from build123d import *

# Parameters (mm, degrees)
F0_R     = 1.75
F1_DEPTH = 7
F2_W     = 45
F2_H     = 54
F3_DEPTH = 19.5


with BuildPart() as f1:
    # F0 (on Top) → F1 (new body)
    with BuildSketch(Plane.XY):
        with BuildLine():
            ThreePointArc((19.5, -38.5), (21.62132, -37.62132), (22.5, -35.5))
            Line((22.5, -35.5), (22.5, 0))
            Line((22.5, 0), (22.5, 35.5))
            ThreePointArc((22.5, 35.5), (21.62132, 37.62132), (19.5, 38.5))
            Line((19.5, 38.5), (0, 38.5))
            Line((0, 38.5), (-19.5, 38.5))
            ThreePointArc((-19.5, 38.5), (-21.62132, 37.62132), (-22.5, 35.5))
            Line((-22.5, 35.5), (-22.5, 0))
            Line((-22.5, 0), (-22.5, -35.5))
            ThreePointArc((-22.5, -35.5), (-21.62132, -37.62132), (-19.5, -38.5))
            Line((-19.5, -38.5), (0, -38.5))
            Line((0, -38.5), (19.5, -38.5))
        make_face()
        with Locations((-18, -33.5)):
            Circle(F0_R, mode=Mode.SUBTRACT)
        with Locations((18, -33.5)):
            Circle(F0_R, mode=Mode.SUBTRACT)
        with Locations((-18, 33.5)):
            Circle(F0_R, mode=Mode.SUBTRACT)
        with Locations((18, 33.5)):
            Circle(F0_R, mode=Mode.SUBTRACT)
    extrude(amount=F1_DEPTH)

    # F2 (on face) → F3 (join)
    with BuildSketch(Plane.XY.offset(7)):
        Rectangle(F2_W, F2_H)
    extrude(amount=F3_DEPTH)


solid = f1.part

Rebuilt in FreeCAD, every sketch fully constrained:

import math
import FreeCAD as App
import Part
import Sketcher

V = App.Vector
Q = App.Units.Quantity

doc = App.newDocument("Part")
params = doc.addObject("Spreadsheet::Sheet", "Params")
for row, (alias, value) in enumerate([
    ("sketch1_radius", "3.000001 mm"),
    ("sketch1_diameter", "3.5 mm"),
    ("sketch1_width", "39 mm"),
    ("sketch1_height", "71 mm"),
    ("pad1_length", "7 mm"),
    ("sketch2_width", "45 mm"),
    ("sketch2_height", "54 mm"),
    ("pad2_length", "19.5 mm"),
], start=1):
    params.set(f"A{row}", alias)
    params.set(f"B{row}", "=" + value)
    params.setAlias(f"B{row}", alias)

body = doc.addObject("PartDesign::Body", "Body")

sketch1 = body.newObject("Sketcher::SketchObject", "Sketch")
sketch1.AttachmentSupport = (doc.getObject("XY_Plane"), [""])
sketch1.MapMode = "FlatFace"
sketch1.addGeometry(Part.ArcOfCircle(Part.Circle(V(19.499999, -35.499999, 0), V(0, 0, 1), 3.000001), math.radians(-89.999978), math.radians(-0.000022)), False)
sketch1.addGeometry(Part.LineSegment(V(22.5, -35.5, 0), V(22.5, 35.5, 0)), False)
sketch1.addGeometry(Part.ArcOfCircle(Part.Circle(V(19.499999, 35.499999, 0), V(0, 0, 1), 3.000001), math.radians(0.000022), math.radians(89.999978)), False)
sketch1.addGeometry(Part.LineSegment(V(19.5, 38.5, 0), V(-19.5, 38.5, 0)), False)
sketch1.addGeometry(Part.ArcOfCircle(Part.Circle(V(-19.499999, 35.499999, 0), V(0, 0, 1), 3.000001), math.radians(90.000022), math.radians(179.999978)), False)
sketch1.addGeometry(Part.LineSegment(V(-22.5, 35.5, 0), V(-22.5, -35.5, 0)), False)
sketch1.addGeometry(Part.ArcOfCircle(Part.Circle(V(-19.499999, -35.499999, 0), V(0, 0, 1), 3.000001), math.radians(-179.999978), math.radians(-90.000022)), False)
sketch1.addGeometry(Part.LineSegment(V(-19.5, -38.5, 0), V(19.5, -38.5, 0)), False)
sketch1.addGeometry(Part.Circle(V(-18, -33.5, 0), V(0, 0, 1), 1.75), False)
sketch1.addGeometry(Part.Circle(V(18, -33.5, 0), V(0, 0, 1), 1.75), False)
sketch1.addGeometry(Part.Circle(V(-18, 33.5, 0), V(0, 0, 1), 1.75), False)
sketch1.addGeometry(Part.Circle(V(18, 33.5, 0), V(0, 0, 1), 1.75), False)
sketch1.addConstraint(Sketcher.Constraint("Tangent", 0, 2, 1, 1))
sketch1.addConstraint(Sketcher.Constraint("Tangent", 1, 2, 2, 1))
sketch1.addConstraint(Sketcher.Constraint("Tangent", 2, 2, 3, 1))
sketch1.addConstraint(Sketcher.Constraint("Tangent", 3, 2, 4, 1))
sketch1.addConstraint(Sketcher.Constraint("Tangent", 4, 2, 5, 1))
sketch1.addConstraint(Sketcher.Constraint("Tangent", 5, 2, 6, 1))
sketch1.addConstraint(Sketcher.Constraint("Tangent", 6, 2, 7, 1))
sketch1.addConstraint(Sketcher.Constraint("Tangent", 7, 2, 0, 1))
sketch1.addConstraint(Sketcher.Constraint("Vertical", 1))
sketch1.addConstraint(Sketcher.Constraint("Horizontal", 3))
sketch1.addConstraint(Sketcher.Constraint("Vertical", 5))
sketch1.addConstraint(Sketcher.Constraint("Horizontal", 7))
sketch1.addConstraint(Sketcher.Constraint("Equal", 0, 2))
sketch1.addConstraint(Sketcher.Constraint("Equal", 2, 4))
sketch1.addConstraint(Sketcher.Constraint("Equal", 4, 6))
sketch1.addConstraint(Sketcher.Constraint("Equal", 8, 9))
sketch1.addConstraint(Sketcher.Constraint("Equal", 9, 10))
sketch1.addConstraint(Sketcher.Constraint("Equal", 10, 11))
sketch1.addConstraint(Sketcher.Constraint("Symmetric", 0, 3, 4, 3, -1, 1))
sketch1.addConstraint(Sketcher.Constraint("Symmetric", 9, 3, 10, 3, -1, 1))
sketch1.addConstraint(Sketcher.Constraint("Symmetric", 8, 3, 11, 3, -1, 1))
sketch1.addConstraint(Sketcher.Constraint("Symmetric", 8, 3, 9, 3, -2))
sketch1.addConstraint(Sketcher.Constraint("Radius", 0, Q("3.000001 mm")))
sketch1.addConstraint(Sketcher.Constraint("Diameter", 8, Q("3.5 mm")))
sketch1.addConstraint(Sketcher.Constraint("DistanceX", 3, 2, 3, 1, Q("39 mm")))
sketch1.addConstraint(Sketcher.Constraint("DistanceY", 1, 1, 1, 2, Q("71 mm")))
sketch1.addConstraint(Sketcher.Constraint("DistanceX", 8, 3, -1, 1, Q("18 mm")))
sketch1.addConstraint(Sketcher.Constraint("DistanceY", 6, 3, 8, 3, Q("1.999999 mm")))
sketch1.setExpression("Constraints[22]", "Params.sketch1_radius")
sketch1.setExpression("Constraints[23]", "Params.sketch1_diameter")
sketch1.setExpression("Constraints[24]", "Params.sketch1_width")
sketch1.setExpression("Constraints[25]", "Params.sketch1_height")
pad1 = body.newObject("PartDesign::Pad", "Pad")
pad1.Profile = sketch1
pad1.setExpression("Length", "Params.pad1_length")

sketch2 = body.newObject("Sketcher::SketchObject", "Sketch001")
sketch2.AttachmentSupport = (doc.getObject("XY_Plane"), [""])
sketch2.MapMode = "FlatFace"
sketch2.AttachmentOffset = App.Placement(V(0, 0, 7), App.Rotation())
sketch2.addGeometry(Part.LineSegment(V(-22.5, 27, 0), V(-22.5, -27, 0)), False)
sketch2.addGeometry(Part.LineSegment(V(-22.5, -27, 0), V(22.5, -27, 0)), False)
sketch2.addGeometry(Part.LineSegment(V(22.5, -27, 0), V(22.5, 27, 0)), False)
sketch2.addGeometry(Part.LineSegment(V(22.5, 27, 0), V(-22.5, 27, 0)), False)
sketch2.addConstraint(Sketcher.Constraint("Coincident", 0, 2, 1, 1))
sketch2.addConstraint(Sketcher.Constraint("Coincident", 1, 2, 2, 1))
sketch2.addConstraint(Sketcher.Constraint("Coincident", 2, 2, 3, 1))
sketch2.addConstraint(Sketcher.Constraint("Coincident", 3, 2, 0, 1))
sketch2.addConstraint(Sketcher.Constraint("Vertical", 0))
sketch2.addConstraint(Sketcher.Constraint("Horizontal", 1))
sketch2.addConstraint(Sketcher.Constraint("Vertical", 2))
sketch2.addConstraint(Sketcher.Constraint("Horizontal", 3))
sketch2.addConstraint(Sketcher.Constraint("Symmetric", 0, 2, 2, 2, -1, 1))
sketch2.addConstraint(Sketcher.Constraint("DistanceX", 1, 1, 1, 2, Q("45 mm")))
sketch2.addConstraint(Sketcher.Constraint("DistanceY", 0, 2, 0, 1, Q("54 mm")))
sketch2.setExpression("Constraints[9]", "Params.sketch2_width")
sketch2.setExpression("Constraints[10]", "Params.sketch2_height")
pad2 = body.newObject("PartDesign::Pad", "Pad001")
pad2.Profile = sketch2
pad2.setExpression("Length", "Params.pad2_length")

doc.recompute()
